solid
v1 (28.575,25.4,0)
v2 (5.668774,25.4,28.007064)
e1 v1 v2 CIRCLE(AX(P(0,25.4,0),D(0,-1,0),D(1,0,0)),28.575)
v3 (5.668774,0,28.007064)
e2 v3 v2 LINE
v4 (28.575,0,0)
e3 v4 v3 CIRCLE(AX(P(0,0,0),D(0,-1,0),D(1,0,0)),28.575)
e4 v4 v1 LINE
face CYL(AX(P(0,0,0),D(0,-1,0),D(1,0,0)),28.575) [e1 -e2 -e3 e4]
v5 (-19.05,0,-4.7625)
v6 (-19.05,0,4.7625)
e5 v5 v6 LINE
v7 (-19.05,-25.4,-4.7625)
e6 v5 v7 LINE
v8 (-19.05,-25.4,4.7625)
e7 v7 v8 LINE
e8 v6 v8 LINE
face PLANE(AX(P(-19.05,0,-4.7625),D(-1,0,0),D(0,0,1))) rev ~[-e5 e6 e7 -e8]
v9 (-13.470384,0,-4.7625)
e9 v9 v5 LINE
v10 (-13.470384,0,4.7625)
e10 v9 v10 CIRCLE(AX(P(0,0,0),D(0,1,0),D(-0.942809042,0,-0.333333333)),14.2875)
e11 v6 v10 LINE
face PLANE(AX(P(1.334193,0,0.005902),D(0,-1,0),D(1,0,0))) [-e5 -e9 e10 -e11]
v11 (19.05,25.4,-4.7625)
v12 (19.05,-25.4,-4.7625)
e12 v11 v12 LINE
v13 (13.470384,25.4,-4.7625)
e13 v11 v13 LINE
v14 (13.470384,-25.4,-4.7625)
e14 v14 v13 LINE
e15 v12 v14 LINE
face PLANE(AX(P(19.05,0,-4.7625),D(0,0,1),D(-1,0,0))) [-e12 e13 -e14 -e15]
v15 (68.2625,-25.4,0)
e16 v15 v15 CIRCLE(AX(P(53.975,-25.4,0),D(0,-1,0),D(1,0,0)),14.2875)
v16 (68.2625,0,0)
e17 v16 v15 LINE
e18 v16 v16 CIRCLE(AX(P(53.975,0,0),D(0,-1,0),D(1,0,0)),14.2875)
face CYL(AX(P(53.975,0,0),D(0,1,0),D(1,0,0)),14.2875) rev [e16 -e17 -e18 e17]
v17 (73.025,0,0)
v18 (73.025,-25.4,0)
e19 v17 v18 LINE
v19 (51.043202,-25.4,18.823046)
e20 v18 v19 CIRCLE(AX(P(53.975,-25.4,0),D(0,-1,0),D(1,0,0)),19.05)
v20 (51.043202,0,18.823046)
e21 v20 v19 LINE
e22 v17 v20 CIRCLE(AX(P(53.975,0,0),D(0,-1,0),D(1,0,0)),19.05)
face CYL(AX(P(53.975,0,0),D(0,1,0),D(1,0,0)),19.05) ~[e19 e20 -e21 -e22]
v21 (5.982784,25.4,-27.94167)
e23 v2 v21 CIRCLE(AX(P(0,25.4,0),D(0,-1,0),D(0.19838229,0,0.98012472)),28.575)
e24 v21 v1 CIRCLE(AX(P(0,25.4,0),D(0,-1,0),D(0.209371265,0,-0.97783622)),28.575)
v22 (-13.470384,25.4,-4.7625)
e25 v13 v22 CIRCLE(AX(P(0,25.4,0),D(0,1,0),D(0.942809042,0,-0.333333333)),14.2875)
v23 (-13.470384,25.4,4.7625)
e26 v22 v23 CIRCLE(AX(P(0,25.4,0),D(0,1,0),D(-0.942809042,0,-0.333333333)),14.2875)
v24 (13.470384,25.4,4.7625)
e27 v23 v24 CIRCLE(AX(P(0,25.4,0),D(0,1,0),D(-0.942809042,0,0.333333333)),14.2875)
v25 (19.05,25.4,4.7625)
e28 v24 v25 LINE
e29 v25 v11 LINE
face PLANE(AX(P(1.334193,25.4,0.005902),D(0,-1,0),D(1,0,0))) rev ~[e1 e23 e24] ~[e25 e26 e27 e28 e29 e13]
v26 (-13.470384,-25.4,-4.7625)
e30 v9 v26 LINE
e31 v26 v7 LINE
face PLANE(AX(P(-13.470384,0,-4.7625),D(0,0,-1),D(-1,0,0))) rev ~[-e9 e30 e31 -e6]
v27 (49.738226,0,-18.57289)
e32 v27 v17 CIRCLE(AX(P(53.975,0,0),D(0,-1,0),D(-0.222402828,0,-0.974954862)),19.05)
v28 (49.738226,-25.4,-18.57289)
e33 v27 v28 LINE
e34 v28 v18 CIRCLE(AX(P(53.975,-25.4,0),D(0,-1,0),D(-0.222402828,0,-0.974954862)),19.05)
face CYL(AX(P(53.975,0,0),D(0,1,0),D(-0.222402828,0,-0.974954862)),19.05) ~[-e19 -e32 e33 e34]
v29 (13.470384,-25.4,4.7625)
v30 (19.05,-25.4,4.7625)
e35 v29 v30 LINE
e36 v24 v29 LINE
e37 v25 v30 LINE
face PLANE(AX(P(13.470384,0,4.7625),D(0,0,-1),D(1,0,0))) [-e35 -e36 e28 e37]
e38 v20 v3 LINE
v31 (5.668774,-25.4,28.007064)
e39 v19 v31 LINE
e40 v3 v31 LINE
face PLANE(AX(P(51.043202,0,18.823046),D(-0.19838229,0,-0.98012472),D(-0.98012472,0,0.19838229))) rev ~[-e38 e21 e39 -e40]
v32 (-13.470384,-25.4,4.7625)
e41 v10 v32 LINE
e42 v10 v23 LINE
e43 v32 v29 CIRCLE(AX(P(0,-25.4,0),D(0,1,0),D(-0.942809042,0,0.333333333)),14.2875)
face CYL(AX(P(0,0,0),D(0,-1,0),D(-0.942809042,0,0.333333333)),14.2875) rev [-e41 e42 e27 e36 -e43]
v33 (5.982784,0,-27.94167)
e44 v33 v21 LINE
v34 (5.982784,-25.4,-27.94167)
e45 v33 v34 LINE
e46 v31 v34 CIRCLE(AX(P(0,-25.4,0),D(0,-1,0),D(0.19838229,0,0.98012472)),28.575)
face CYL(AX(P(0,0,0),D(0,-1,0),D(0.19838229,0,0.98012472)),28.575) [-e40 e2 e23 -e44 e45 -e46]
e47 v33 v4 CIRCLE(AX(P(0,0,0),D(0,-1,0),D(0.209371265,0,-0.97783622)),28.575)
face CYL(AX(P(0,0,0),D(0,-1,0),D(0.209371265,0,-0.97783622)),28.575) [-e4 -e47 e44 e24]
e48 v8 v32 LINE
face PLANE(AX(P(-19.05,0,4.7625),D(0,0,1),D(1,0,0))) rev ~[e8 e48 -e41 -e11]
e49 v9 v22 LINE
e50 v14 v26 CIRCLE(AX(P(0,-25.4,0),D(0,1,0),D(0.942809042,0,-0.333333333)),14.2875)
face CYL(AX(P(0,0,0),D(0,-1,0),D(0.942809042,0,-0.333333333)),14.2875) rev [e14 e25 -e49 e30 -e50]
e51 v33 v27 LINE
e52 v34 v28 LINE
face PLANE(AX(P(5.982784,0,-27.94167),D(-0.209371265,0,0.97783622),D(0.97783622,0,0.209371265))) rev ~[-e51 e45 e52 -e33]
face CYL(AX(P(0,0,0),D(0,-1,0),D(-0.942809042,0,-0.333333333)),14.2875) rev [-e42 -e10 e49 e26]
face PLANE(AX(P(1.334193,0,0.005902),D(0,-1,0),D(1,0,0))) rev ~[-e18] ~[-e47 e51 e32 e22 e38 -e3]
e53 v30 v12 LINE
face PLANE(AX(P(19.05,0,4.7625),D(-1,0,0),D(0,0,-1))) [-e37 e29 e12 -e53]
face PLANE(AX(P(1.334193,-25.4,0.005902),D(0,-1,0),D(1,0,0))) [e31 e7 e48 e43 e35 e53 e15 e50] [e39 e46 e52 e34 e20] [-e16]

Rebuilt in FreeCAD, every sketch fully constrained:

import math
import FreeCAD as App
import Part
import Sketcher

V = App.Vector
Q = App.Units.Quantity

doc = App.newDocument("Part")
params = doc.addObject("Spreadsheet::Sheet", "Params")
for row, (alias, value) in enumerate([
    ("sketch1_radius", "0.75 in"),
    ("sketch1_diameter", "1.125 in"),
    ("sketch1_radius2", "1.125 in"),
    ("sketch1_height", "0.375 in"),
    ("pad1_length", "1 in"),
    ("sketch2_radius", "1.125 in"),
    ("sketch2_radius2", "0.5625 in"),
    ("sketch2_height", "0.375 in"),
    ("pad2_length", "1 in"),
], start=1):
    params.set(f"A{row}", alias)
    params.set(f"B{row}", "=" + value)
    params.setAlias(f"B{row}", alias)

body = doc.addObject("PartDesign::Body", "Body")

# Sketch on XZ plane
sketch1 = body.newObject("Sketcher::SketchObject", "Sketch")
sketch1.AttachmentSupport = (doc.getObject("XZ_Plane"), [""])
sketch1.MapMode = "FlatFace"
sketch1.addGeometry(Part.ArcOfCircle(Part.Circle(V(0, 0, 0), V(0, 0, 1), 28.575), math.radians(78.557624), math.radians(282.085509)), False)
sketch1.addGeometry(Part.LineSegment(V(5.982784, -27.94167, 0), V(49.738226, -18.57289, 0)), False)
sketch1.addGeometry(Part.ArcOfCircle(Part.Circle(V(53.975, 0, 0), V(0, 0, 1), 19.05), math.radians(-102.850202), math.radians(0)), False)
sketch1.addGeometry(Part.ArcOfCircle(Part.Circle(V(53.975, 0, 0), V(0, 0, 1), 19.05), math.radians(0), math.radians(98.853015)), False)
sketch1.addGeometry(Part.LineSegment(V(51.043202, 18.823046, 0), V(5.668774, 28.007064, 0)), False)
sketch1.addGeometry(Part.Circle(V(53.975, 0, 0), V(0, 0, 1), 14.2875), False)
sketch1.addGeometry(Part.LineSegment(V(-19.05, 4.7625, 0), V(-13.470384, 4.7625, 0)), False)
sketch1.addGeometry(Part.ArcOfCircle(Part.Circle(V(0, 0, 0), V(0, 0, 1), 14.2875), math.radians(19.471221), math.radians(160.528779)), False)
sketch1.addGeometry(Part.LineSegment(V(13.470384, 4.7625, 0), V(19.05, 4.7625, 0)), False)
sketch1.addGeometry(Part.LineSegment(V(19.05, 4.7625, 0), V(19.05, -4.7625, 0)), False)
sketch1.addGeometry(Part.LineSegment(V(19.05, -4.7625, 0), V(13.470384, -4.7625, 0)), False)
sketch1.addGeometry(Part.ArcOfCircle(Part.Circle(V(0, 0, 0), V(0, 0, 1), 14.2875), math.radians(-160.528779), math.radians(-19.471221)), False)
sketch1.addGeometry(Part.LineSegment(V(-13.470384, -4.7625, 0), V(-19.05, -4.7625, 0)), False)
sketch1.addGeometry(Part.LineSegment(V(-19.05, -4.7625, 0), V(-19.05, 4.7625, 0)), False)
sketch1.addConstraint(Sketcher.Constraint("Tangent", 0, 2, 1, 1))
sketch1.addConstraint(Sketcher.Constraint("Coincident", 1, 2, 2, 1))
sketch1.addConstraint(Sketcher.Constraint("Tangent", 2, 2, 3, 1))
sketch1.addConstraint(Sketcher.Constraint("Coincident", 3, 2, 4, 1))
sketch1.addConstraint(Sketcher.Constraint("Tangent", 4, 2, 0, 1))
sketch1.addConstraint(Sketcher.Constraint("Coincident", 6, 2, 7, 2))
sketch1.addConstraint(Sketcher.Constraint("Coincident", 7, 1, 8, 1))
sketch1.addConstraint(Sketcher.Constraint("Coincident", 8, 2, 9, 1))
sketch1.addConstraint(Sketcher.Constraint("Coincident", 9, 2, 10, 1))
sketch1.addConstraint(Sketcher.Constraint("Coincident", 10, 2, 11, 2))
sketch1.addConstraint(Sketcher.Constraint("Coincident", 11, 1, 12, 1))
sketch1.addConstraint(Sketcher.Constraint("Coincident", 12, 2, 13, 1))
sketch1.addConstraint(Sketcher.Constraint("Coincident", 13, 2, 6, 1))
sketch1.addConstraint(Sketcher.Constraint("Horizontal", 6))
sketch1.addConstraint(Sketcher.Constraint("Horizontal", 8))
sketch1.addConstraint(Sketcher.Constraint("Vertical", 9))
sketch1.addConstraint(Sketcher.Constraint("Horizontal", 10))
sketch1.addConstraint(Sketcher.Constraint("Horizontal", 12))
sketch1.addConstraint(Sketcher.Constraint("Vertical", 13))
sketch1.addConstraint(Sketcher.Constraint("Coincident", 0, 3, -1, 1))
sketch1.addConstraint(Sketcher.Constraint("Coincident", 7, 3, -1, 1))
sketch1.addConstraint(Sketcher.Constraint("Coincident", 11, 3, -1, 1))
sketch1.addConstraint(Sketcher.Constraint("Coincident", 5, 3, 2, 3))
sketch1.addConstraint(Sketcher.Constraint("Equal", 2, 3))
sketch1.addConstraint(Sketcher.Constraint("Equal", 5, 7))
sketch1.addConstraint(Sketcher.Constraint("Equal", 7, 11))
sketch1.addConstraint(Sketcher.Constraint("Symmetric", 8, 2, 12, 2, -1, 1))
sketch1.addConstraint(Sketcher.Constraint("PointOnObject", 2, 3, -1))
sketch1.addConstraint(Sketcher.Constraint("PointOnObject", 2, 2, -1))
sketch1.addConstraint(Sketcher.Constraint("Horizontal", 6, 2, 7, 1))
sketch1.addConstraint(Sketcher.Constraint("Horizontal", 10, 2, 11, 1))
sketch1.addConstraint(Sketcher.Constraint("Radius", 2, Q("0.75 in")))
sketch1.addConstraint(Sketcher.Constraint("Diameter", 5, Q("1.125 in")))
sketch1.addConstraint(Sketcher.Constraint("Radius", 0, Q("1.125 in")))
sketch1.addConstraint(Sketcher.Constraint("DistanceY", 9, 2, 9, 1, Q("0.375 in")))
sketch1.addConstraint(Sketcher.Constraint("DistanceX", -1, 1, 8, 2, Q("0.75 in")))
sketch1.addConstraint(Sketcher.Constraint("DistanceX", -1, 1, 2, 3, Q("2.125 in")))
sketch1.addConstraint(Sketcher.Constraint("DistanceX", -1, 1, 3, 2, Q("51.043202 mm")))
sketch1.addConstraint(Sketcher.Constraint("Distance", 1, Q("44.74721 mm")))
sketch1.setExpression("Constraints[31]", "Params.sketch1_radius")
sketch1.setExpression("Constraints[32]", "Params.sketch1_diameter")
sketch1.setExpression("Constraints[33]", "Params.sketch1_radius2")
sketch1.setExpression("Constraints[34]", "Params.sketch1_height")
pad1 = body.newObject("PartDesign::Pad", "Pad")
pad1.Profile = sketch1
pad1.setExpression("Length", "Params.pad1_length")

# Sketch on XZ plane
sketch2 = body.newObject("Sketcher::SketchObject", "Sketch001")
sketch2.AttachmentSupport = (doc.getObject("XZ_Plane"), [""])
sketch2.MapMode = "FlatFace"
sketch2.addGeometry(Part.ArcOfCircle(Part.Circle(V(0, 0, 0), V(0, 0, 1), 28.575), math.radians(-77.914491), math.radians(0)), False)
sketch2.addGeometry(Part.ArcOfCircle(Part.Circle(V(0, 0, 0), V(0, 0, 1), 28.575), math.radians(0), math.radians(78.557624)), False)
sketch2.addGeometry(Part.ArcOfCircle(Part.Circle(V(0, 0, 0), V(0, 0, 1), 28.575), math.radians(78.557624), math.radians(282.085509)), False)
sketch2.addGeometry(Part.ArcOfCircle(Part.Circle(V(0, 0, 0), V(0, 0, 1), 14.2875), math.radians(-160.528779), math.radians(-19.471221)), False)
sketch2.addGeometry(Part.ArcOfCircle(Part.Circle(V(0, 0, 0), V(0, 0, 1), 14.2875), math.radians(160.528779), math.radians(199.471221)), False)
sketch2.addGeometry(Part.ArcOfCircle(Part.Circle(V(0, 0, 0), V(0, 0, 1), 14.2875), math.radians(19.471221), math.radians(160.528779)), False)
sketch2.addGeometry(Part.LineSegment(V(13.470384, 4.7625, 0), V(19.05, 4.7625, 0)), False)
sketch2.addGeometry(Part.LineSegment(V(19.05, 4.7625, 0), V(19.05, -4.7625, 0)), False)
sketch2.addGeometry(Part.LineSegment(V(19.05, -4.7625, 0), V(13.470384, -4.7625, 0)), False)
sketch2.addConstraint(Sketcher.Constraint("Tangent", 0, 2, 1, 1))
sketch2.addConstraint(Sketcher.Constraint("Tangent", 1, 2, 2, 1))
sketch2.addConstraint(Sketcher.Constraint("Tangent", 2, 2, 0, 1))
sketch2.addConstraint(Sketcher.Constraint("Tangent", 3, 1, 4, 2))
sketch2.addConstraint(Sketcher.Constraint("Tangent", 4, 1, 5, 2))
sketch2.addConstraint(Sketcher.Constraint("Coincident", 5, 1, 6, 1))
sketch2.addConstraint(Sketcher.Constraint("Coincident", 6, 2, 7, 1))
sketch2.addConstraint(Sketcher.Constraint("Coincident", 7, 2, 8, 1))
sketch2.addConstraint(Sketcher.Constraint("Coincident", 8, 2, 3, 2))
sketch2.addConstraint(Sketcher.Constraint("Horizontal", 6))
sketch2.addConstraint(Sketcher.Constraint("Vertical", 7))
sketch2.addConstraint(Sketcher.Constraint("Horizontal", 8))
sketch2.addConstraint(Sketcher.Constraint("Coincident", 0, 3, -1, 1))
sketch2.addConstraint(Sketcher.Constraint("Coincident", 3, 3, -1, 1))
sketch2.addConstraint(Sketcher.Constraint("Coincident", 5, 3, -1, 1))
sketch2.addConstraint(Sketcher.Constraint("PointOnObject", 0, 2, -1))
sketch2.addConstraint(Sketcher.Constraint("Horizontal", 4, 1, 5, 1))
sketch2.addConstraint(Sketcher.Constraint("Horizontal", 3, 1, 7, 2))
sketch2.addConstraint(Sketcher.Constraint("Vertical", 3, 1, 4, 1))
sketch2.addConstraint(Sketcher.Constraint("Radius", 0, Q("1.125 in")))
sketch2.addConstraint(Sketcher.Constraint("Radius", 3, Q("0.5625 in")))
sketch2.addConstraint(Sketcher.Constraint("DistanceY", 7, 2, 7, 1, Q("0.375 in")))
sketch2.addConstraint(Sketcher.Constraint("DistanceX", -1, 1, 6, 2, Q("0.75 in")))
sketch2.addConstraint(Sketcher.Constraint("DistanceY", 2, 2, -1, 1, Q("27.94167 mm")))
sketch2.addConstraint(Sketcher.Constraint("DistanceX", -1, 1, 1, 2, Q("5.668774 mm")))
sketch2.setExpression("Constraints[19]", "Params.sketch2_radius")
sketch2.setExpression("Constraints[20]", "Params.sketch2_radius2")
sketch2.setExpression("Constraints[21]", "Params.sketch2_height")
pad2 = body.newObject("PartDesign::Pad", "Pad001")
pad2.Profile = sketch2
pad2.setExpression("Length", "Params.pad2_length")
pad2.Reversed = True

doc.recompute()
